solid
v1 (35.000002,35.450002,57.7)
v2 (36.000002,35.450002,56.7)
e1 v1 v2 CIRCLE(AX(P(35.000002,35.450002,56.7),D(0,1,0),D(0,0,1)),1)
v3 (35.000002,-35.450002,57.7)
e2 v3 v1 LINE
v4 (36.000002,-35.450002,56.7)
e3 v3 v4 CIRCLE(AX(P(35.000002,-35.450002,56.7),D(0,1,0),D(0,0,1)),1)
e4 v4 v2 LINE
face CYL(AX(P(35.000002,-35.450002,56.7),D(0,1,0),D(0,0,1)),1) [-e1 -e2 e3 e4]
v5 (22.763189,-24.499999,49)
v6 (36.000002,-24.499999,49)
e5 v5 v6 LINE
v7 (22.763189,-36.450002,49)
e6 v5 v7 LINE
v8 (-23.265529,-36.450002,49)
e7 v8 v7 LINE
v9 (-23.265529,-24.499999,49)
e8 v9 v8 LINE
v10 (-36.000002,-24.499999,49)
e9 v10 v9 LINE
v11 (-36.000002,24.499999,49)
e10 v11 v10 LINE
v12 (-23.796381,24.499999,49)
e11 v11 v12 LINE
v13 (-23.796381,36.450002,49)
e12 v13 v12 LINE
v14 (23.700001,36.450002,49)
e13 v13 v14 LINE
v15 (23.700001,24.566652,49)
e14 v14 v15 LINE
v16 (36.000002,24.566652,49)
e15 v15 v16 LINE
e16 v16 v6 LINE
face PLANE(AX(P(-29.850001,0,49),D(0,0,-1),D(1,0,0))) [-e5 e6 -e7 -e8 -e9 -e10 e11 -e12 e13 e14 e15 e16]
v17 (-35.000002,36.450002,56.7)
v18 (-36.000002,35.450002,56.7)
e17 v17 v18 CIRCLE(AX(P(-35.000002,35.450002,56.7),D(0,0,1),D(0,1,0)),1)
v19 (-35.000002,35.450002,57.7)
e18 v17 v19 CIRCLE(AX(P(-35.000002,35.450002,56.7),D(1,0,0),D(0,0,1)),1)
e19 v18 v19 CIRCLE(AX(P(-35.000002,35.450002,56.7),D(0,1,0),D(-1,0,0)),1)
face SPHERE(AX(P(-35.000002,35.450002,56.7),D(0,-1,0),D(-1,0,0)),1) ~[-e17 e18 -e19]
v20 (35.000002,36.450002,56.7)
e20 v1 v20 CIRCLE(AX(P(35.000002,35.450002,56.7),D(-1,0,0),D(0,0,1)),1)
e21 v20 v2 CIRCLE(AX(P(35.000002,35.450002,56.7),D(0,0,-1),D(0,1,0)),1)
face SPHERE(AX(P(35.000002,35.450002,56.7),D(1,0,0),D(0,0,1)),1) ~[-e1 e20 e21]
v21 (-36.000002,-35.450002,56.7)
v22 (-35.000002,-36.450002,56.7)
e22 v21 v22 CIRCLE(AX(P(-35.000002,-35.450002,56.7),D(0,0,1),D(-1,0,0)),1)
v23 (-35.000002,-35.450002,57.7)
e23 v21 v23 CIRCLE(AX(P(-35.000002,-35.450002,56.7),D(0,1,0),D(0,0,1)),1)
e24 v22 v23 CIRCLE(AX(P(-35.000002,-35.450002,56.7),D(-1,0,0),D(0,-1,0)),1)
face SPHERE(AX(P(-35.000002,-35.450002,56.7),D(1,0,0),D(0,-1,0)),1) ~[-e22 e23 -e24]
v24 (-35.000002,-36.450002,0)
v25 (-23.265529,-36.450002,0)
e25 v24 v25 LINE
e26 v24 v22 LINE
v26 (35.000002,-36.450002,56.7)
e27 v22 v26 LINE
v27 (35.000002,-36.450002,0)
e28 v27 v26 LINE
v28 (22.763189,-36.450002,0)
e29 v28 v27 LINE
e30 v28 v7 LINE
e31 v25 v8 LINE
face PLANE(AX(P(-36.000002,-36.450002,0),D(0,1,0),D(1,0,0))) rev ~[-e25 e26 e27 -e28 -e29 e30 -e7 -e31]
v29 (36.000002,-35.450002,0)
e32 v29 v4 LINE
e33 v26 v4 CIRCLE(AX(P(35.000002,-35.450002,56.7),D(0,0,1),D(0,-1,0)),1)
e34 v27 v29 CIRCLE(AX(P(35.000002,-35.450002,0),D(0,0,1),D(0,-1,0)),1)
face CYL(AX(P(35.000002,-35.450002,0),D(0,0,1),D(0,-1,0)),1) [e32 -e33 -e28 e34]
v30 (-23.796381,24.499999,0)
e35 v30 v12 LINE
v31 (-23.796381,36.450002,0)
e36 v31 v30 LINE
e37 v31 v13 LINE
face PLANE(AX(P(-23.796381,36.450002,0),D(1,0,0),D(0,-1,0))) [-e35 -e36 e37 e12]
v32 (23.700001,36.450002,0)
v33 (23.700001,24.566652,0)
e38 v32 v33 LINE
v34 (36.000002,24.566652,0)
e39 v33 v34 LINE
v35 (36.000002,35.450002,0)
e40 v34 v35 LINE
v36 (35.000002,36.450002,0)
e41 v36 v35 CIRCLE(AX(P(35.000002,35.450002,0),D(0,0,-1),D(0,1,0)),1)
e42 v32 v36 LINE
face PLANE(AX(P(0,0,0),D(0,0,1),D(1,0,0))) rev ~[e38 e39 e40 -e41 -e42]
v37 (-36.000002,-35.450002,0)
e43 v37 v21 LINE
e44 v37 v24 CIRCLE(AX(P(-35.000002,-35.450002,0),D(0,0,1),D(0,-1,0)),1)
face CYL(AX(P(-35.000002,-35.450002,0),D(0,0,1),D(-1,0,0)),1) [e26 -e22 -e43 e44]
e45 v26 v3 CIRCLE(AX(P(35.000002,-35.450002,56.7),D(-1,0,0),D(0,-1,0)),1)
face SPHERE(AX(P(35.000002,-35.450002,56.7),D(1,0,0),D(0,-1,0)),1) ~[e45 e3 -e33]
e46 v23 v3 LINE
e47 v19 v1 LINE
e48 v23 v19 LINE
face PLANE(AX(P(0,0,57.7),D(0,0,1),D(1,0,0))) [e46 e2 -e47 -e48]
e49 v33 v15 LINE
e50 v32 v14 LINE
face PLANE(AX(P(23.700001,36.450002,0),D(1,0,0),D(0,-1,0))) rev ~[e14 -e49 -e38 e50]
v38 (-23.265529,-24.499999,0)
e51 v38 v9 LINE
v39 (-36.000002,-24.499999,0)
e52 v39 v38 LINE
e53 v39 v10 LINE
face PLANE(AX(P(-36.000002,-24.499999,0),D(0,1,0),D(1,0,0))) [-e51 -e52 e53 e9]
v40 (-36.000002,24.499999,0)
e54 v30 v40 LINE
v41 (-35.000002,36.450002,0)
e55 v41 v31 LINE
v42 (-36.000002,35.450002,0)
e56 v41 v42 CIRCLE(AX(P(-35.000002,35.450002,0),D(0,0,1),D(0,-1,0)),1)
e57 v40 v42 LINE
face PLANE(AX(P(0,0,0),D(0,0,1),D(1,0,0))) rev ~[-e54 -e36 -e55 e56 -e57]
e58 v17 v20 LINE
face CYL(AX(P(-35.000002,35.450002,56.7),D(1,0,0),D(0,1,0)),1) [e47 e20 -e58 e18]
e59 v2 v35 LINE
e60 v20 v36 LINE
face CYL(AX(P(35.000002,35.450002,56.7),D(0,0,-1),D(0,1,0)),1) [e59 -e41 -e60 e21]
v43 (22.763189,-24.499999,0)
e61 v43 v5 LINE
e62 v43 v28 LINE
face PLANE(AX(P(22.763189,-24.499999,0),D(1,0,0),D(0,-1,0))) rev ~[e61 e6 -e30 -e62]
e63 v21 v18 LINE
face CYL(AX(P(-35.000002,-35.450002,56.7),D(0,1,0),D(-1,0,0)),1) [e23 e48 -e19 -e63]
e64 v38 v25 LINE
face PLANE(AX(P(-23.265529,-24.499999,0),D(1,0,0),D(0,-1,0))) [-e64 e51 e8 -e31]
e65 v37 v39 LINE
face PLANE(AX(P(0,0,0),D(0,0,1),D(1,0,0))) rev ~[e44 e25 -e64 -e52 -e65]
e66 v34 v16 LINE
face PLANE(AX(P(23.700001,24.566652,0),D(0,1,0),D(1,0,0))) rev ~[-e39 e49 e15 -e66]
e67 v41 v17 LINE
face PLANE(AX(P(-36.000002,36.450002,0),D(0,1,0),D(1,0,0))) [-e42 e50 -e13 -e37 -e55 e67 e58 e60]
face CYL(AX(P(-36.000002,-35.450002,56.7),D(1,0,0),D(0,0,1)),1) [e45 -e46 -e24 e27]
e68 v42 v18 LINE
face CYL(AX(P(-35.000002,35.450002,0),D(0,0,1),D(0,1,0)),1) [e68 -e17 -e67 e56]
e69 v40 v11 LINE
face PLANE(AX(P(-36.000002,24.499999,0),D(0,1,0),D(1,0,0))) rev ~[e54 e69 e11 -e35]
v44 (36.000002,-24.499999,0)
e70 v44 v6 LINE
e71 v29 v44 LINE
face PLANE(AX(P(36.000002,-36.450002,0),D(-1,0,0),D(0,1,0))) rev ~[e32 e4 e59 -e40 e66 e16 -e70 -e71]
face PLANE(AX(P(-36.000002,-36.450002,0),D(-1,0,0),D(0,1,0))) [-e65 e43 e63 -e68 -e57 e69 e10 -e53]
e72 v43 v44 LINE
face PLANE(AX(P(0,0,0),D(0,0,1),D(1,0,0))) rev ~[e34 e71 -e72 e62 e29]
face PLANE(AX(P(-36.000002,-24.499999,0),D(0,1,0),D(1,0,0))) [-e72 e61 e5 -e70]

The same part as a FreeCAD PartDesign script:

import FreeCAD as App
import Part
import Sketcher

V = App.Vector


def edges_at(feature, points):
    """Names of the edges that pass closest to the given points."""
    edges = feature.Shape.Edges
    near = lambda p: min(range(len(edges)), key=lambda i: edges[i].distToShape(Part.Vertex(*p))[0])
    return sorted({f"Edge{near(p) + 1}" for p in points})


def add_polygon(sketch, points):
    """Adds a closed chain of lines whose ends are joined by coincident constraints."""
    first, n = sketch.GeometryCount, len(points)
    for a, b in zip(points, points[1:] + points[:1]):
        sketch.addGeometry(Part.LineSegment(App.Vector(*a, 0), App.Vector(*b, 0)), False)
    for i in range(n):
        sketch.addConstraint(Sketcher.Constraint("Coincident", first + i, 2, first + (i + 1) % n, 1))

doc = App.newDocument("Part")
body = doc.addObject("PartDesign::Body", "Body")

sketch1 = body.newObject("Sketcher::SketchObject", "Sketch")
sketch1.AttachmentSupport = (doc.getObject("XY_Plane"), [""])
sketch1.MapMode = "FlatFace"
add_polygon(sketch1, [(-36.000002, 36.450002), (-36.000002, -36.450002), (36.000002, -36.450002), (36.000002, 36.450002)])
sketch1.addConstraint(Sketcher.Constraint("Vertical", 0))
sketch1.addConstraint(Sketcher.Constraint("Horizontal", 1))
sketch1.addConstraint(Sketcher.Constraint("Vertical", 2))
sketch1.addConstraint(Sketcher.Constraint("Horizontal", 3))
sketch1.addConstraint(Sketcher.Constraint("Symmetric", 0, 2, 2, 2, -1, 1))
sketch1.addConstraint(Sketcher.Constraint("DistanceX", 1, 1, 1, 2, 72.000004))
sketch1.addConstraint(Sketcher.Constraint("DistanceY", 0, 2, 0, 1, 72.900005))
pad1 = body.newObject("PartDesign::Pad", "Pad")
pad1.Profile = sketch1
pad1.Length = 57.7

sketch2 = body.newObject("Sketcher::SketchObject", "Sketch001")
sketch2.AttachmentSupport = (doc.getObject("XY_Plane"), [""])
sketch2.MapMode = "FlatFace"
add_polygon(sketch2, [(-23.700001, -24.499999), (-23.700001, 24.499999), (23.700001, 24.499999), (23.700001, -24.499999)])
sketch2.addConstraint(Sketcher.Constraint("Vertical", 0))
sketch2.addConstraint(Sketcher.Constraint("Horizontal", 1))
sketch2.addConstraint(Sketcher.Constraint("Vertical", 2))
sketch2.addConstraint(Sketcher.Constraint("Horizontal", 3))
sketch2.addConstraint(Sketcher.Constraint("Symmetric", 0, 2, 2, 2, -1, 1))
sketch2.addConstraint(Sketcher.Constraint("DistanceY", 0, 1, 0, 2, 48.999999))
sketch2.addConstraint(Sketcher.Constraint("DistanceX", 1, 1, 1, 2, 47.400001))
pocket1 = body.newObject("PartDesign::Pocket", "Pocket")
pocket1.Profile = sketch2
pocket1.Length = 49
pocket1.Reversed = True

sketch3 = body.newObject("Sketcher::SketchObject", "Sketch002")
sketch3.AttachmentSupport = (doc.getObject("XY_Plane"), [""])
sketch3.MapMode = "FlatFace"
add_polygon(sketch3, [(-36.000002, -24.499999), (-36.000002, 24.499999), (-23.700001, 24.499999), (-23.700001, -24.499999)])
sketch3.addConstraint(Sketcher.Constraint("Vertical", 0))
sketch3.addConstraint(Sketcher.Constraint("Horizontal", 1))
sketch3.addConstraint(Sketcher.Constraint("Vertical", 2))
sketch3.addConstraint(Sketcher.Constraint("Horizontal", 3))
sketch3.addConstraint(Sketcher.Constraint("DistanceY", 0, 1, 0, 2, 48.999999))
sketch3.addConstraint(Sketcher.Constraint("DistanceX", 1, 1, 1, 2, 12.300001))
sketch3.addConstraint(Sketcher.Constraint("DistanceY", -1, 1, 0, 2, 24.499999))
sketch3.addConstraint(Sketcher.Constraint("DistanceX", 1, 2, -1, 1, 23.700001))
pocket2 = body.newObject("PartDesign::Pocket", "Pocket001")
pocket2.Profile = sketch3
pocket2.Length = 49
pocket2.Reversed = True

sketch4 = body.newObject("Sketcher::SketchObject", "Sketch003")
sketch4.AttachmentSupport = (doc.getObject("XY_Plane"), [""])
sketch4.MapMode = "FlatFace"
add_polygon(sketch4, [(23.700001, -24.499999), (23.700001, 24.566652), (36.000002, 24.566652), (36.000002, -24.499999)])
sketch4.addConstraint(Sketcher.Constraint("Vertical", 0))
sketch4.addConstraint(Sketcher.Constraint("Horizontal", 1))
sketch4.addConstraint(Sketcher.Constraint("Vertical", 2))
sketch4.addConstraint(Sketcher.Constraint("Horizontal", 3))
sketch4.addConstraint(Sketcher.Constraint("DistanceX", 1, 1, 1, 2, 12.300001))
sketch4.addConstraint(Sketcher.Constraint("DistanceX", -1, 1, 0, 2, 23.700001))
sketch4.addConstraint(Sketcher.Constraint("DistanceY", 2, 2, -1, 1, 24.499999))
sketch4.addConstraint(Sketcher.Constraint("DistanceY", 0, 1, 0, 2, 49.066652))
pocket3 = body.newObject("PartDesign::Pocket", "Pocket002")
pocket3.Profile = sketch4
pocket3.Length = 49
pocket3.Reversed = True

sketch5 = body.newObject("Sketcher::SketchObject", "Sketch004")
sketch5.AttachmentSupport = (doc.getObject("XY_Plane"), [""])
sketch5.MapMode = "FlatFace"
add_polygon(sketch5, [(-23.796381, 24.499999), (-23.796381, 36.450002), (23.700001, 36.450002), (23.700001, 24.499999)])
sketch5.addConstraint(Sketcher.Constraint("Vertical", 0))
sketch5.addConstraint(Sketcher.Constraint("Horizontal", 1))
sketch5.addConstraint(Sketcher.Constraint("Vertical", 2))
sketch5.addConstraint(Sketcher.Constraint("Horizontal", 3))
sketch5.addConstraint(Sketcher.Constraint("DistanceX", -1, 1, 1, 2, 23.700001))
sketch5.addConstraint(Sketcher.Constraint("DistanceY", -1, 1, 2, 2, 24.499999))
sketch5.addConstraint(Sketcher.Constraint("DistanceX", 1, 1, 1, 2, 47.496382))
sketch5.addConstraint(Sketcher.Constraint("DistanceY", 0, 1, 0, 2, 11.950003))
pocket4 = body.newObject("PartDesign::Pocket", "Pocket003")
pocket4.Profile = sketch5
pocket4.Length = 49
pocket4.Reversed = True

sketch6 = body.newObject("Sketcher::SketchObject", "Sketch005")
sketch6.AttachmentSupport = (doc.getObject("XY_Plane"), [""])
sketch6.MapMode = "FlatFace"
add_polygon(sketch6, [(-23.265529, -36.450002), (-23.265529, -24.499999), (22.763189, -24.499999), (22.763189, -36.450002)])
sketch6.addConstraint(Sketcher.Constraint("Vertical", 0))
sketch6.addConstraint(Sketcher.Constraint("Horizontal", 1))
sketch6.addConstraint(Sketcher.Constraint("Vertical", 2))
sketch6.addConstraint(Sketcher.Constraint("Horizontal", 3))
sketch6.addConstraint(Sketcher.Constraint("DistanceY", 0, 2, -1, 1, 24.499999))
sketch6.addConstraint(Sketcher.Constraint("DistanceX", 1, 1, 1, 2, 46.028718))
sketch6.addConstraint(Sketcher.Constraint("DistanceY", 0, 1, 0, 2, 11.950003))
sketch6.addConstraint(Sketcher.Constraint("DistanceX", 0, 2, -1, 1, 23.265529))
pocket5 = body.newObject("PartDesign::Pocket", "Pocket004")
pocket5.Profile = sketch6
pocket5.Length = 49
pocket5.Reversed = True
doc.recompute()

fillet = body.newObject("PartDesign::Fillet", "Fillet")
fillet.Base = (pocket5, edges_at(pocket5, [(0, -36.45, 57.7)]))
fillet.Radius = 1
doc.recompute()

fillet2 = body.newObject("PartDesign::Fillet", "Fillet001")
fillet2.Base = (fillet, edges_at(fillet, [(-36, 0.5, 57.7)]))
fillet2.Radius = 1
doc.recompute()

fillet3 = body.newObject("PartDesign::Fillet", "Fillet002")
fillet3.Base = (fillet2, edges_at(fillet2, [(0.5, 36.45, 57.7)]))
fillet3.Radius = 1
doc.recompute()

fillet4 = body.newObject("PartDesign::Fillet", "Fillet003")
fillet4.Base = (fillet3, edges_at(fillet3, [(36, 0, 57.7)]))
fillet4.Radius = 1

doc.recompute()
